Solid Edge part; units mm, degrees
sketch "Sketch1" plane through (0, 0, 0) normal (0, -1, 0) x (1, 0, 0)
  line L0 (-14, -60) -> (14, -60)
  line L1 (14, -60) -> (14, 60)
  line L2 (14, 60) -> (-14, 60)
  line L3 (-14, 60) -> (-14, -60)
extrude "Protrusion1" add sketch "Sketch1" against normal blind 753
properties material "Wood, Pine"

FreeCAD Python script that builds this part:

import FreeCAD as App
import Part
import Sketcher

doc = App.newDocument("Part")
params = doc.addObject("Spreadsheet::Sheet", "Params")
for row, (alias, value) in enumerate([
    ("sketch1_width", "28 mm"),
    ("sketch1_height", "120 mm"),
    ("pad1_length", "753 mm"),
], start=1):
    params.set(f"A{row}", alias)
    params.set(f"B{row}", "=" + value)
    params.setAlias(f"B{row}", alias)

body = doc.addObject("PartDesign::Body", "Body")

# Sketch on XZ plane
sketch1 = doc.addObject("Sketcher::SketchObject", "Sketch")
body.addObject(sketch1)
sketch1.AttachmentSupport = (doc.XZ_Plane, [""])
sketch1.MapMode = "FlatFace"
sketch1.addGeometry(Part.LineSegment(App.Vector(-14, 60, 0), App.Vector(-14, -60, 0)), False)
sketch1.addGeometry(Part.LineSegment(App.Vector(-14, -60, 0), App.Vector(14, -60, 0)), False)
sketch1.addGeometry(Part.LineSegment(App.Vector(14, -60, 0), App.Vector(14, 60, 0)), False)
sketch1.addGeometry(Part.LineSegment(App.Vector(14, 60, 0), App.Vector(-14, 60, 0)), False)
sketch1.addConstraint(Sketcher.Constraint("Coincident", 0, 2, 1, 1))
sketch1.addConstraint(Sketcher.Constraint("Coincident", 1, 2, 2, 1))
sketch1.addConstraint(Sketcher.Constraint("Coincident", 2, 2, 3, 1))
sketch1.addConstraint(Sketcher.Constraint("Coincident", 3, 2, 0, 1))
sketch1.addConstraint(Sketcher.Constraint("Vertical", 0))
sketch1.addConstraint(Sketcher.Constraint("Horizontal", 1))
sketch1.addConstraint(Sketcher.Constraint("Vertical", 2))
sketch1.addConstraint(Sketcher.Constraint("Horizontal", 3))
sketch1.addConstraint(Sketcher.Constraint("Symmetric", 0, 2, 2, 2, -1, 1))
sketch1.addConstraint(Sketcher.Constraint("DistanceX", 1, 1, 1, 2, 28.0))
sketch1.addConstraint(Sketcher.Constraint("DistanceY", 0, 2, 0, 1, 120.0))
sketch1.setExpression("Constraints[9]", "Params.sketch1_width")
sketch1.setExpression("Constraints[10]", "Params.sketch1_height")
pad1 = doc.addObject("PartDesign::Pad", "Pad")
body.addObject(pad1)
pad1.Profile = sketch1
pad1.setExpression("Length", "Params.pad1_length")
pad1.Reversed = True

doc.recompute()
